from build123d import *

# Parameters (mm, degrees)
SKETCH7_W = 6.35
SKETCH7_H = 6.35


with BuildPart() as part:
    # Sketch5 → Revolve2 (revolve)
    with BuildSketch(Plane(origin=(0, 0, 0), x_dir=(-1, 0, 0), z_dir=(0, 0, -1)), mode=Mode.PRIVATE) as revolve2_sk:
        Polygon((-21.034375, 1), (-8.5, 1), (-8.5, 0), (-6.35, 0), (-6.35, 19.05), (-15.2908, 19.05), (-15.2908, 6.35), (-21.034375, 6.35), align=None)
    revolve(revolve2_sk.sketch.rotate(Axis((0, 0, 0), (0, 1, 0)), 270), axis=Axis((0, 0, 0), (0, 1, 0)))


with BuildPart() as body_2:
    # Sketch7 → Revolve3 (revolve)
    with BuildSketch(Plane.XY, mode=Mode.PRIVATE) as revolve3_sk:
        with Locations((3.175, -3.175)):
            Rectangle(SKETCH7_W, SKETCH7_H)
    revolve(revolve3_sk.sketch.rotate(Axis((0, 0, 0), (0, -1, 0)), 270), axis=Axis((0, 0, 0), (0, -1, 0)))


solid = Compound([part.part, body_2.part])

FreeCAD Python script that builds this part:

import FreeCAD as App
import Part
import Sketcher
Q = App.Units.Quantity


def add_polygon(sketch, points):
    """Adds a closed chain of lines whose ends are joined by coincident constraints."""
    first, n = sketch.GeometryCount, len(points)
    for a, b in zip(points, points[1:] + points[:1]):
        sketch.addGeometry(Part.LineSegment(App.Vector(*a, 0), App.Vector(*b, 0)), False)
    for i in range(n):
        sketch.addConstraint(Sketcher.Constraint("Coincident", first + i, 2, first + (i + 1) % n, 1))

doc = App.newDocument("Part")
body = doc.addObject("PartDesign::Body", "Body")

sketch1 = body.newObject("Sketcher::SketchObject", "Sketch")
sketch1.AttachmentSupport = (doc.getObject("XY_Plane"), [""])
sketch1.MapMode = "FlatFace"
add_polygon(sketch1, [(21.034375, 1), (8.5, 1), (8.5, 0), (6.35, 0), (6.35, 19.05), (15.2908, 19.05), (15.2908, 6.35), (21.034375, 6.35)])
sketch1.addConstraint([
    Sketcher.Constraint("Horizontal", 0),
    Sketcher.Constraint("Vertical", 1),
    Sketcher.Constraint("Horizontal", 2),
    Sketcher.Constraint("Vertical", 3),
    Sketcher.Constraint("Horizontal", 4),
    Sketcher.Constraint("Vertical", 5),
    Sketcher.Constraint("Horizontal", 6),
    Sketcher.Constraint("Vertical", 7),
    Sketcher.Constraint("PointOnObject", 1, 2, -1),
    Sketcher.Constraint("DistanceY", 5, 2, 5, 1, Q("0.5 in")),
    Sketcher.Constraint("DistanceY", 3, 1, 3, 2, Q("0.75 in")),
    Sketcher.Constraint("DistanceX", 4, 1, 4, 2, Q("0.352 in")),
    Sketcher.Constraint("DistanceX", -1, 1, 2, 2, Q("0.25 in")),
    Sketcher.Constraint("DistanceX", -1, 1, 6, 2, Q("0.828125 in")),
    Sketcher.Constraint("DistanceX", 2, 2, 2, 1, Q("2.15 mm")),
    Sketcher.Constraint("DistanceY", 1, 2, 1, 1, Q("1 mm")),
])
revolution = body.newObject("PartDesign::Revolution", "Revolution")
revolution.Profile = sketch1
revolution.ReferenceAxis = (sketch1, ["V_Axis"])
revolution.Angle = 360
body2 = doc.addObject("PartDesign::Body", "Body001")

sketch2 = body2.newObject("Sketcher::SketchObject", "Sketch001")
sketch2.AttachmentSupport = (doc.getObject("XY_Plane001"), [""])
sketch2.MapMode = "FlatFace"
add_polygon(sketch2, [(0, 0), (0, -6.35), (6.35, -6.35), (6.35, 0)])
sketch2.addConstraint([
    Sketcher.Constraint("Vertical", 0),
    Sketcher.Constraint("Horizontal", 1),
    Sketcher.Constraint("Vertical", 2),
    Sketcher.Constraint("Horizontal", 3),
    Sketcher.Constraint("Coincident", 3, 2, -1, 1),
    Sketcher.Constraint("Equal", 3, 0),
    Sketcher.Constraint("DistanceX", 1, 1, 1, 2, Q("0.25 in")),
])
revolution2 = body2.newObject("PartDesign::Revolution", "Revolution001")
revolution2.Profile = sketch2
revolution2.ReferenceAxis = (sketch2, ["V_Axis"])
revolution2.Angle = 360

doc.recompute()
